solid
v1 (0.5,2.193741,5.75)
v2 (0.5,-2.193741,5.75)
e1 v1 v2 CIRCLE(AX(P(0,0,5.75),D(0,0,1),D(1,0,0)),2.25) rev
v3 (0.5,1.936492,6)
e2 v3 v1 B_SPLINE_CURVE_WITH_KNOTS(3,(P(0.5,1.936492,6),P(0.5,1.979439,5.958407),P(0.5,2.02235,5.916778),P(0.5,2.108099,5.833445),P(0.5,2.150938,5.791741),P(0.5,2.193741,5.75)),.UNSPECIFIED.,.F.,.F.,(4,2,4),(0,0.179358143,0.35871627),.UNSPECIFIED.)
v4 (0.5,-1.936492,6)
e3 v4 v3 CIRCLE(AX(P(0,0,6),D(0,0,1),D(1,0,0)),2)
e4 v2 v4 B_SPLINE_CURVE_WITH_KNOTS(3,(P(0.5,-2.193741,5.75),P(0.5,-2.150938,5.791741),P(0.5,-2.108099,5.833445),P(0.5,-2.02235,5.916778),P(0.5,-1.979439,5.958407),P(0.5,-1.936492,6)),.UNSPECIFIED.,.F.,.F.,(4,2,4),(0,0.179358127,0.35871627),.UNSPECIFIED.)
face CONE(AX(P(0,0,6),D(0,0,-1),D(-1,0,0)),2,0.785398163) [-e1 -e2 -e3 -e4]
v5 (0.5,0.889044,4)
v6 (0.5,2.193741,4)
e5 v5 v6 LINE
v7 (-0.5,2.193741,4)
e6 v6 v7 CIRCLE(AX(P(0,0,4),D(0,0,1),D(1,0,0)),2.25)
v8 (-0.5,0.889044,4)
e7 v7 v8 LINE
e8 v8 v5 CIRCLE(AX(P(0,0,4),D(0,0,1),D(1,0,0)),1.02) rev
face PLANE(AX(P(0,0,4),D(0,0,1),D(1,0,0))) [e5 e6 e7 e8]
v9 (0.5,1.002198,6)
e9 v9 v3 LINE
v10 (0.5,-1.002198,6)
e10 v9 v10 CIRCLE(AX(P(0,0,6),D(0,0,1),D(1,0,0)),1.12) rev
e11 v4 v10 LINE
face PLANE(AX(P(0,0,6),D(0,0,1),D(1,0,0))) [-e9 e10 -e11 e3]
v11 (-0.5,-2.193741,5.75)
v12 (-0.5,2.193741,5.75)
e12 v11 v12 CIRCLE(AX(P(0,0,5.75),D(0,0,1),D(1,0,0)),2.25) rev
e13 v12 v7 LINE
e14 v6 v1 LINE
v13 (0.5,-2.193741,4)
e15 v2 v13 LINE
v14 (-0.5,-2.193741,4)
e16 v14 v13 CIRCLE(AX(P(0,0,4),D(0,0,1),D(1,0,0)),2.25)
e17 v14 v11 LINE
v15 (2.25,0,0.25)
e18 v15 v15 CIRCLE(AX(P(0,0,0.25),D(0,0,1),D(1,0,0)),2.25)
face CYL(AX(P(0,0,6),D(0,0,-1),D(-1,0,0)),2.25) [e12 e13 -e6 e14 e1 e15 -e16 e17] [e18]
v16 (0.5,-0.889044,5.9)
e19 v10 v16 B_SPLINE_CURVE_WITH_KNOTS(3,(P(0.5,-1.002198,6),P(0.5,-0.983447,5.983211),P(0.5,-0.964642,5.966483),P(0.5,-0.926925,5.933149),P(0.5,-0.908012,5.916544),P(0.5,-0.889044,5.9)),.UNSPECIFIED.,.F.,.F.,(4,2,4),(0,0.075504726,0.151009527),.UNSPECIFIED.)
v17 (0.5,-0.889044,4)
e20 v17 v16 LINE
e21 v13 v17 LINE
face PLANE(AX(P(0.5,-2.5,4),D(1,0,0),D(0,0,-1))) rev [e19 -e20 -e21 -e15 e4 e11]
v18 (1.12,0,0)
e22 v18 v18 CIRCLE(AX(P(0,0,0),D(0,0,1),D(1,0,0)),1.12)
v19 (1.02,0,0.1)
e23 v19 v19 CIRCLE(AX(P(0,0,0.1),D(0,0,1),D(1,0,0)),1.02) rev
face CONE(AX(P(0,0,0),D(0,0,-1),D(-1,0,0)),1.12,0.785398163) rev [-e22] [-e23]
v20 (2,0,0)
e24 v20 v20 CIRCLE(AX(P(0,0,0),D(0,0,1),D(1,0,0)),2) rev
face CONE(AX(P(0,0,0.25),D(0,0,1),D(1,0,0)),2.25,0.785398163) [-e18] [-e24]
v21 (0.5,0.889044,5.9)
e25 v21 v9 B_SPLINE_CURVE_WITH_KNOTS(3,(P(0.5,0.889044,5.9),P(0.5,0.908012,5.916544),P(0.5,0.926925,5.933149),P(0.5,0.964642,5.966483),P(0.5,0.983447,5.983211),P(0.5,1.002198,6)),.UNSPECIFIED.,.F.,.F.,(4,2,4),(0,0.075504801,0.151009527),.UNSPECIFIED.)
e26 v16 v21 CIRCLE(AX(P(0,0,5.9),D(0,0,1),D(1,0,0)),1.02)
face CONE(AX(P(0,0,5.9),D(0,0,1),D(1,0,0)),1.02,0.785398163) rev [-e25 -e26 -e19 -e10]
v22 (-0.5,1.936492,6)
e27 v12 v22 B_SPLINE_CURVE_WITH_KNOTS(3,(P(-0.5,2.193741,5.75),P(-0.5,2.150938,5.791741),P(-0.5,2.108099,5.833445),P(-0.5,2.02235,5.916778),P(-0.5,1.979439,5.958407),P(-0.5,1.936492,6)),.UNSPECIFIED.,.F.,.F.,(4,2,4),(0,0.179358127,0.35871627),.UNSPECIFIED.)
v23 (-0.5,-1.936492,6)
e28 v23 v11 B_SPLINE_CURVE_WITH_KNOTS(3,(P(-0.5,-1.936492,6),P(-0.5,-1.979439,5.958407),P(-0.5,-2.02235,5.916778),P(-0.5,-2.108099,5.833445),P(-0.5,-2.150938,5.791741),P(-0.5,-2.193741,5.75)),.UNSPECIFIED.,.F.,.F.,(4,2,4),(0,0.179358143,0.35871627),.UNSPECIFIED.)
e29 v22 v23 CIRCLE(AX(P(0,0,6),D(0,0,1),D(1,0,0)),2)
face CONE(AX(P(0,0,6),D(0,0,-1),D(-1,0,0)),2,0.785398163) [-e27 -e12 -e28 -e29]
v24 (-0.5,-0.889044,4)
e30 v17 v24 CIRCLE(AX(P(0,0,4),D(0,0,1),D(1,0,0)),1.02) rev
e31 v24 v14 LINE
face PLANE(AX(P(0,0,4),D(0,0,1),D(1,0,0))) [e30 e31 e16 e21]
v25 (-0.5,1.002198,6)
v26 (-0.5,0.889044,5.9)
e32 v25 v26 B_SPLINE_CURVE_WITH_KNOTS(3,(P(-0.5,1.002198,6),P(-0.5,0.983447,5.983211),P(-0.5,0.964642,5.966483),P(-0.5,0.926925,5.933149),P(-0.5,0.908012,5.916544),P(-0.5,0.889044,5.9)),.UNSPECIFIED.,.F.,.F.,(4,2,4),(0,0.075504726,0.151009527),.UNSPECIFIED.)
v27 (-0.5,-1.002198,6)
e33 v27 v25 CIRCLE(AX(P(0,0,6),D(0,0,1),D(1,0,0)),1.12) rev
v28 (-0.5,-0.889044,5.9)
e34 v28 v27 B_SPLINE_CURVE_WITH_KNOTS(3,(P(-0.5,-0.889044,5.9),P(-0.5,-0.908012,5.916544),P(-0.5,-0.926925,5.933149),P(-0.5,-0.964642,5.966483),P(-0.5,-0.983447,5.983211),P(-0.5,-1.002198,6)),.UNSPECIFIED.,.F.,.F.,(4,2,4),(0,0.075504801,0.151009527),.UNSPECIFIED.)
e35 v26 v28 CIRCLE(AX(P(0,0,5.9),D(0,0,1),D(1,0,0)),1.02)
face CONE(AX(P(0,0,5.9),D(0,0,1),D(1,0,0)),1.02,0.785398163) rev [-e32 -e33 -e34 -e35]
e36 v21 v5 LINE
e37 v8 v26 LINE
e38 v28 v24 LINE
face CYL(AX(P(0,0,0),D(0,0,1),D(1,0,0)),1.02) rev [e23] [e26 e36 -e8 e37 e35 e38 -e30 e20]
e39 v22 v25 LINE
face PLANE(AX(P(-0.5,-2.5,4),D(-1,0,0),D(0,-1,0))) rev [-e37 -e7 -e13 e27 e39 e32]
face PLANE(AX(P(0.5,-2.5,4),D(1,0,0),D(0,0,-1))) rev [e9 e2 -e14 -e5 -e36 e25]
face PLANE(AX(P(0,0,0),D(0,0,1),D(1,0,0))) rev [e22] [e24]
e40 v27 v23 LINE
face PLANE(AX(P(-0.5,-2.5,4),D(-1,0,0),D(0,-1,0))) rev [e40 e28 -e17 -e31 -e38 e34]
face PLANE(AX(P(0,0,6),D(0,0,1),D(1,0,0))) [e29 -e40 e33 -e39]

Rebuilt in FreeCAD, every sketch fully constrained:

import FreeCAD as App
import Part
import Sketcher

V = App.Vector


def edges_at(feature, points):
    """Names of the edges that pass closest to the given points."""
    edges = feature.Shape.Edges
    near = lambda p: min(range(len(edges)), key=lambda i: edges[i].distToShape(Part.Vertex(*p))[0])
    return sorted({f"Edge{near(p) + 1}" for p in points})

doc = App.newDocument("Part")
body = doc.addObject("PartDesign::Body", "Body")

# Sketch on XY plane
sketch1 = body.newObject("Sketcher::SketchObject", "Sketch")
sketch1.AttachmentSupport = (doc.getObject("XY_Plane"), [""])
sketch1.MapMode = "FlatFace"
sketch1.addGeometry(Part.Circle(V(0, 0, 0), V(0, 0, 1), 2.2), False)
sketch1.addConstraint([
    Sketcher.Constraint("Coincident", 0, 3, -1, 1),
    Sketcher.Constraint("Diameter", 0, 4.5),
])
pad1 = body.newObject("PartDesign::Pad", "Pad")
pad1.Profile = sketch1
pad1.Length = 6

# Sketch on XY plane
sketch2 = body.newObject("Sketcher::SketchObject", "Sketch001")
sketch2.AttachmentSupport = (doc.getObject("XY_Plane"), [""])
sketch2.MapMode = "FlatFace"
sketch2.AttachmentOffset = App.Placement(V(0, 0, 6), App.Rotation())
sketch2.addGeometry(Part.Circle(V(0, 0, 0), V(0, 0, 1), 1), False)
sketch2.addConstraint([
    Sketcher.Constraint("Coincident", 0, 3, -1, 1),
    Sketcher.Constraint("Diameter", 0, 2.04),
])
pocket1 = body.newObject("PartDesign::Pocket", "Pocket")
pocket1.Profile = sketch2
pocket1.Length = 6

# Sketch on XY plane
sketch3 = body.newObject("Sketcher::SketchObject", "Sketch002")
sketch3.AttachmentSupport = (doc.getObject("XY_Plane"), [""])
sketch3.MapMode = "FlatFace"
sketch3.AttachmentOffset = App.Placement(V(0, 0, 6), App.Rotation())
sketch3.addGeometry([
    Part.LineSegment(V(-0.5, 2.5, 0), V(-0.5, -2.5, 0)),
    Part.LineSegment(V(-0.5, -2.5, 0), V(0.5, -2.5, 0)),
    Part.LineSegment(V(0.5, -2.5, 0), V(0.5, 2.5, 0)),
    Part.LineSegment(V(0.5, 2.5, 0), V(-0.5, 2.5, 0)),
], False)
sketch3.addConstraint([
    Sketcher.Constraint("Coincident", 0, 2, 1, 1),
    Sketcher.Constraint("Coincident", 1, 2, 2, 1),
    Sketcher.Constraint("Coincident", 2, 2, 3, 1),
    Sketcher.Constraint("Coincident", 3, 2, 0, 1),
    Sketcher.Constraint("Vertical", 0),
    Sketcher.Constraint("Horizontal", 1),
    Sketcher.Constraint("Vertical", 2),
    Sketcher.Constraint("Horizontal", 3),
    Sketcher.Constraint("Symmetric", 0, 2, 2, 2, -1, 1),
    Sketcher.Constraint("DistanceX", 1, 1, 1, 2, 1.0),
    Sketcher.Constraint("DistanceY", 0, 2, 0, 1, 5.0),
])
pocket2 = body.newObject("PartDesign::Pocket", "Pocket001")
pocket2.Profile = sketch3
pocket2.Length = 2
doc.recompute()

chamfer = body.newObject("PartDesign::Chamfer", "Chamfer")
chamfer.Base = (pocket2, edges_at(pocket2, [(1.759, -1.403, 6)]))
chamfer.Size = 0.25
doc.recompute()

chamfer2 = body.newObject("PartDesign::Chamfer", "Chamfer001")
chamfer2.Base = (chamfer, edges_at(chamfer, [(-2.25, 0, 6)]))
chamfer2.Size = 0.25
doc.recompute()

chamfer3 = body.newObject("PartDesign::Chamfer", "Chamfer002")
chamfer3.Base = (chamfer2, edges_at(chamfer2, [(-2.25, 0, 0)]))
chamfer3.Size = 0.25
doc.recompute()

chamfer4 = body.newObject("PartDesign::Chamfer", "Chamfer003")
chamfer4.Base = (chamfer3, edges_at(chamfer3, [(-1.02, 0, 0)]))
chamfer4.Size = 0.1
doc.recompute()

chamfer5 = body.newObject("PartDesign::Chamfer", "Chamfer004")
chamfer5.Base = (chamfer4, edges_at(chamfer4, [(0.88, -0.515, 6)]))
chamfer5.Size = 0.1
doc.recompute()

chamfer6 = body.newObject("PartDesign::Chamfer", "Chamfer005")
chamfer6.Base = (chamfer5, edges_at(chamfer5, [(-1.02, 0, 6)]))
chamfer6.Size = 0.1

doc.recompute()
